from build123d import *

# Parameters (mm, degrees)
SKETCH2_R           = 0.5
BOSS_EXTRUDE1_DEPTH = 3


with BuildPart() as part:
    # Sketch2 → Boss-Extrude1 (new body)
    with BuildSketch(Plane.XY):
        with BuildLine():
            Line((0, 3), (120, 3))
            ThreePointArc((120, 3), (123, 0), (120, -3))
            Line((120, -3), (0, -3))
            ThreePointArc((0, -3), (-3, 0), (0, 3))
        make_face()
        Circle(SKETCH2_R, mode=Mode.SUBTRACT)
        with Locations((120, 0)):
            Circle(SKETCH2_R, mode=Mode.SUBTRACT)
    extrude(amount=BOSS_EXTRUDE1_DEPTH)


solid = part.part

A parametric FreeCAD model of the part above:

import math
import FreeCAD as App
import Part
import Sketcher
from FreeCAD import Vector
Q = App.Units.Quantity

doc = App.newDocument("Part")
body = doc.addObject("PartDesign::Body", "Body")

# Sketch on XY plane
sketch1 = body.newObject("Sketcher::SketchObject", "Sketch")
sketch1.AttachmentSupport = (doc.getObject("XY_Plane"), [""])
sketch1.MapMode = "FlatFace"
sketch1.addGeometry(Part.LineSegment(Vector(120, 3, 0), Vector(0, 3, 0)), False)
sketch1.addGeometry(Part.ArcOfCircle(Part.Circle(Vector(0, 0, 0), Vector(0, 0, 1), 3), math.radians(90), math.radians(270)), False)
sketch1.addGeometry(Part.LineSegment(Vector(0, -3, 0), Vector(120, -3, 0)), False)
sketch1.addGeometry(Part.ArcOfCircle(Part.Circle(Vector(120, 0, 0), Vector(0, 0, 1), 3), math.radians(-90), math.radians(90)), False)
sketch1.addGeometry(Part.Circle(Vector(120, 0, 0), Vector(0, 0, 1), 0.5), False)
sketch1.addGeometry(Part.Circle(Vector(0, 0, 0), Vector(0, 0, 1), 0.5), False)
sketch1.addConstraint(Sketcher.Constraint("Tangent", 0, 2, 1, 1))
sketch1.addConstraint(Sketcher.Constraint("Tangent", 1, 2, 2, 1))
sketch1.addConstraint(Sketcher.Constraint("Tangent", 2, 2, 3, 1))
sketch1.addConstraint(Sketcher.Constraint("Tangent", 3, 2, 0, 1))
sketch1.addConstraint(Sketcher.Constraint("Horizontal", 0))
sketch1.addConstraint(Sketcher.Constraint("Horizontal", 2))
sketch1.addConstraint(Sketcher.Constraint("Coincident", 1, 3, -1, 1))
sketch1.addConstraint(Sketcher.Constraint("Coincident", 5, 3, -1, 1))
sketch1.addConstraint(Sketcher.Constraint("Coincident", 4, 3, 3, 3))
sketch1.addConstraint(Sketcher.Constraint("Equal", 4, 5))
sketch1.addConstraint(Sketcher.Constraint("Diameter", 4, Q("1 mm")))
sketch1.addConstraint(Sketcher.Constraint("Radius", 1, Q("3 mm")))
sketch1.addConstraint(Sketcher.Constraint("DistanceX", 0, 2, 0, 1, Q("120 mm")))
pad1 = body.newObject("PartDesign::Pad", "Pad")
pad1.Profile = sketch1
pad1.Length = 3

doc.recompute()
